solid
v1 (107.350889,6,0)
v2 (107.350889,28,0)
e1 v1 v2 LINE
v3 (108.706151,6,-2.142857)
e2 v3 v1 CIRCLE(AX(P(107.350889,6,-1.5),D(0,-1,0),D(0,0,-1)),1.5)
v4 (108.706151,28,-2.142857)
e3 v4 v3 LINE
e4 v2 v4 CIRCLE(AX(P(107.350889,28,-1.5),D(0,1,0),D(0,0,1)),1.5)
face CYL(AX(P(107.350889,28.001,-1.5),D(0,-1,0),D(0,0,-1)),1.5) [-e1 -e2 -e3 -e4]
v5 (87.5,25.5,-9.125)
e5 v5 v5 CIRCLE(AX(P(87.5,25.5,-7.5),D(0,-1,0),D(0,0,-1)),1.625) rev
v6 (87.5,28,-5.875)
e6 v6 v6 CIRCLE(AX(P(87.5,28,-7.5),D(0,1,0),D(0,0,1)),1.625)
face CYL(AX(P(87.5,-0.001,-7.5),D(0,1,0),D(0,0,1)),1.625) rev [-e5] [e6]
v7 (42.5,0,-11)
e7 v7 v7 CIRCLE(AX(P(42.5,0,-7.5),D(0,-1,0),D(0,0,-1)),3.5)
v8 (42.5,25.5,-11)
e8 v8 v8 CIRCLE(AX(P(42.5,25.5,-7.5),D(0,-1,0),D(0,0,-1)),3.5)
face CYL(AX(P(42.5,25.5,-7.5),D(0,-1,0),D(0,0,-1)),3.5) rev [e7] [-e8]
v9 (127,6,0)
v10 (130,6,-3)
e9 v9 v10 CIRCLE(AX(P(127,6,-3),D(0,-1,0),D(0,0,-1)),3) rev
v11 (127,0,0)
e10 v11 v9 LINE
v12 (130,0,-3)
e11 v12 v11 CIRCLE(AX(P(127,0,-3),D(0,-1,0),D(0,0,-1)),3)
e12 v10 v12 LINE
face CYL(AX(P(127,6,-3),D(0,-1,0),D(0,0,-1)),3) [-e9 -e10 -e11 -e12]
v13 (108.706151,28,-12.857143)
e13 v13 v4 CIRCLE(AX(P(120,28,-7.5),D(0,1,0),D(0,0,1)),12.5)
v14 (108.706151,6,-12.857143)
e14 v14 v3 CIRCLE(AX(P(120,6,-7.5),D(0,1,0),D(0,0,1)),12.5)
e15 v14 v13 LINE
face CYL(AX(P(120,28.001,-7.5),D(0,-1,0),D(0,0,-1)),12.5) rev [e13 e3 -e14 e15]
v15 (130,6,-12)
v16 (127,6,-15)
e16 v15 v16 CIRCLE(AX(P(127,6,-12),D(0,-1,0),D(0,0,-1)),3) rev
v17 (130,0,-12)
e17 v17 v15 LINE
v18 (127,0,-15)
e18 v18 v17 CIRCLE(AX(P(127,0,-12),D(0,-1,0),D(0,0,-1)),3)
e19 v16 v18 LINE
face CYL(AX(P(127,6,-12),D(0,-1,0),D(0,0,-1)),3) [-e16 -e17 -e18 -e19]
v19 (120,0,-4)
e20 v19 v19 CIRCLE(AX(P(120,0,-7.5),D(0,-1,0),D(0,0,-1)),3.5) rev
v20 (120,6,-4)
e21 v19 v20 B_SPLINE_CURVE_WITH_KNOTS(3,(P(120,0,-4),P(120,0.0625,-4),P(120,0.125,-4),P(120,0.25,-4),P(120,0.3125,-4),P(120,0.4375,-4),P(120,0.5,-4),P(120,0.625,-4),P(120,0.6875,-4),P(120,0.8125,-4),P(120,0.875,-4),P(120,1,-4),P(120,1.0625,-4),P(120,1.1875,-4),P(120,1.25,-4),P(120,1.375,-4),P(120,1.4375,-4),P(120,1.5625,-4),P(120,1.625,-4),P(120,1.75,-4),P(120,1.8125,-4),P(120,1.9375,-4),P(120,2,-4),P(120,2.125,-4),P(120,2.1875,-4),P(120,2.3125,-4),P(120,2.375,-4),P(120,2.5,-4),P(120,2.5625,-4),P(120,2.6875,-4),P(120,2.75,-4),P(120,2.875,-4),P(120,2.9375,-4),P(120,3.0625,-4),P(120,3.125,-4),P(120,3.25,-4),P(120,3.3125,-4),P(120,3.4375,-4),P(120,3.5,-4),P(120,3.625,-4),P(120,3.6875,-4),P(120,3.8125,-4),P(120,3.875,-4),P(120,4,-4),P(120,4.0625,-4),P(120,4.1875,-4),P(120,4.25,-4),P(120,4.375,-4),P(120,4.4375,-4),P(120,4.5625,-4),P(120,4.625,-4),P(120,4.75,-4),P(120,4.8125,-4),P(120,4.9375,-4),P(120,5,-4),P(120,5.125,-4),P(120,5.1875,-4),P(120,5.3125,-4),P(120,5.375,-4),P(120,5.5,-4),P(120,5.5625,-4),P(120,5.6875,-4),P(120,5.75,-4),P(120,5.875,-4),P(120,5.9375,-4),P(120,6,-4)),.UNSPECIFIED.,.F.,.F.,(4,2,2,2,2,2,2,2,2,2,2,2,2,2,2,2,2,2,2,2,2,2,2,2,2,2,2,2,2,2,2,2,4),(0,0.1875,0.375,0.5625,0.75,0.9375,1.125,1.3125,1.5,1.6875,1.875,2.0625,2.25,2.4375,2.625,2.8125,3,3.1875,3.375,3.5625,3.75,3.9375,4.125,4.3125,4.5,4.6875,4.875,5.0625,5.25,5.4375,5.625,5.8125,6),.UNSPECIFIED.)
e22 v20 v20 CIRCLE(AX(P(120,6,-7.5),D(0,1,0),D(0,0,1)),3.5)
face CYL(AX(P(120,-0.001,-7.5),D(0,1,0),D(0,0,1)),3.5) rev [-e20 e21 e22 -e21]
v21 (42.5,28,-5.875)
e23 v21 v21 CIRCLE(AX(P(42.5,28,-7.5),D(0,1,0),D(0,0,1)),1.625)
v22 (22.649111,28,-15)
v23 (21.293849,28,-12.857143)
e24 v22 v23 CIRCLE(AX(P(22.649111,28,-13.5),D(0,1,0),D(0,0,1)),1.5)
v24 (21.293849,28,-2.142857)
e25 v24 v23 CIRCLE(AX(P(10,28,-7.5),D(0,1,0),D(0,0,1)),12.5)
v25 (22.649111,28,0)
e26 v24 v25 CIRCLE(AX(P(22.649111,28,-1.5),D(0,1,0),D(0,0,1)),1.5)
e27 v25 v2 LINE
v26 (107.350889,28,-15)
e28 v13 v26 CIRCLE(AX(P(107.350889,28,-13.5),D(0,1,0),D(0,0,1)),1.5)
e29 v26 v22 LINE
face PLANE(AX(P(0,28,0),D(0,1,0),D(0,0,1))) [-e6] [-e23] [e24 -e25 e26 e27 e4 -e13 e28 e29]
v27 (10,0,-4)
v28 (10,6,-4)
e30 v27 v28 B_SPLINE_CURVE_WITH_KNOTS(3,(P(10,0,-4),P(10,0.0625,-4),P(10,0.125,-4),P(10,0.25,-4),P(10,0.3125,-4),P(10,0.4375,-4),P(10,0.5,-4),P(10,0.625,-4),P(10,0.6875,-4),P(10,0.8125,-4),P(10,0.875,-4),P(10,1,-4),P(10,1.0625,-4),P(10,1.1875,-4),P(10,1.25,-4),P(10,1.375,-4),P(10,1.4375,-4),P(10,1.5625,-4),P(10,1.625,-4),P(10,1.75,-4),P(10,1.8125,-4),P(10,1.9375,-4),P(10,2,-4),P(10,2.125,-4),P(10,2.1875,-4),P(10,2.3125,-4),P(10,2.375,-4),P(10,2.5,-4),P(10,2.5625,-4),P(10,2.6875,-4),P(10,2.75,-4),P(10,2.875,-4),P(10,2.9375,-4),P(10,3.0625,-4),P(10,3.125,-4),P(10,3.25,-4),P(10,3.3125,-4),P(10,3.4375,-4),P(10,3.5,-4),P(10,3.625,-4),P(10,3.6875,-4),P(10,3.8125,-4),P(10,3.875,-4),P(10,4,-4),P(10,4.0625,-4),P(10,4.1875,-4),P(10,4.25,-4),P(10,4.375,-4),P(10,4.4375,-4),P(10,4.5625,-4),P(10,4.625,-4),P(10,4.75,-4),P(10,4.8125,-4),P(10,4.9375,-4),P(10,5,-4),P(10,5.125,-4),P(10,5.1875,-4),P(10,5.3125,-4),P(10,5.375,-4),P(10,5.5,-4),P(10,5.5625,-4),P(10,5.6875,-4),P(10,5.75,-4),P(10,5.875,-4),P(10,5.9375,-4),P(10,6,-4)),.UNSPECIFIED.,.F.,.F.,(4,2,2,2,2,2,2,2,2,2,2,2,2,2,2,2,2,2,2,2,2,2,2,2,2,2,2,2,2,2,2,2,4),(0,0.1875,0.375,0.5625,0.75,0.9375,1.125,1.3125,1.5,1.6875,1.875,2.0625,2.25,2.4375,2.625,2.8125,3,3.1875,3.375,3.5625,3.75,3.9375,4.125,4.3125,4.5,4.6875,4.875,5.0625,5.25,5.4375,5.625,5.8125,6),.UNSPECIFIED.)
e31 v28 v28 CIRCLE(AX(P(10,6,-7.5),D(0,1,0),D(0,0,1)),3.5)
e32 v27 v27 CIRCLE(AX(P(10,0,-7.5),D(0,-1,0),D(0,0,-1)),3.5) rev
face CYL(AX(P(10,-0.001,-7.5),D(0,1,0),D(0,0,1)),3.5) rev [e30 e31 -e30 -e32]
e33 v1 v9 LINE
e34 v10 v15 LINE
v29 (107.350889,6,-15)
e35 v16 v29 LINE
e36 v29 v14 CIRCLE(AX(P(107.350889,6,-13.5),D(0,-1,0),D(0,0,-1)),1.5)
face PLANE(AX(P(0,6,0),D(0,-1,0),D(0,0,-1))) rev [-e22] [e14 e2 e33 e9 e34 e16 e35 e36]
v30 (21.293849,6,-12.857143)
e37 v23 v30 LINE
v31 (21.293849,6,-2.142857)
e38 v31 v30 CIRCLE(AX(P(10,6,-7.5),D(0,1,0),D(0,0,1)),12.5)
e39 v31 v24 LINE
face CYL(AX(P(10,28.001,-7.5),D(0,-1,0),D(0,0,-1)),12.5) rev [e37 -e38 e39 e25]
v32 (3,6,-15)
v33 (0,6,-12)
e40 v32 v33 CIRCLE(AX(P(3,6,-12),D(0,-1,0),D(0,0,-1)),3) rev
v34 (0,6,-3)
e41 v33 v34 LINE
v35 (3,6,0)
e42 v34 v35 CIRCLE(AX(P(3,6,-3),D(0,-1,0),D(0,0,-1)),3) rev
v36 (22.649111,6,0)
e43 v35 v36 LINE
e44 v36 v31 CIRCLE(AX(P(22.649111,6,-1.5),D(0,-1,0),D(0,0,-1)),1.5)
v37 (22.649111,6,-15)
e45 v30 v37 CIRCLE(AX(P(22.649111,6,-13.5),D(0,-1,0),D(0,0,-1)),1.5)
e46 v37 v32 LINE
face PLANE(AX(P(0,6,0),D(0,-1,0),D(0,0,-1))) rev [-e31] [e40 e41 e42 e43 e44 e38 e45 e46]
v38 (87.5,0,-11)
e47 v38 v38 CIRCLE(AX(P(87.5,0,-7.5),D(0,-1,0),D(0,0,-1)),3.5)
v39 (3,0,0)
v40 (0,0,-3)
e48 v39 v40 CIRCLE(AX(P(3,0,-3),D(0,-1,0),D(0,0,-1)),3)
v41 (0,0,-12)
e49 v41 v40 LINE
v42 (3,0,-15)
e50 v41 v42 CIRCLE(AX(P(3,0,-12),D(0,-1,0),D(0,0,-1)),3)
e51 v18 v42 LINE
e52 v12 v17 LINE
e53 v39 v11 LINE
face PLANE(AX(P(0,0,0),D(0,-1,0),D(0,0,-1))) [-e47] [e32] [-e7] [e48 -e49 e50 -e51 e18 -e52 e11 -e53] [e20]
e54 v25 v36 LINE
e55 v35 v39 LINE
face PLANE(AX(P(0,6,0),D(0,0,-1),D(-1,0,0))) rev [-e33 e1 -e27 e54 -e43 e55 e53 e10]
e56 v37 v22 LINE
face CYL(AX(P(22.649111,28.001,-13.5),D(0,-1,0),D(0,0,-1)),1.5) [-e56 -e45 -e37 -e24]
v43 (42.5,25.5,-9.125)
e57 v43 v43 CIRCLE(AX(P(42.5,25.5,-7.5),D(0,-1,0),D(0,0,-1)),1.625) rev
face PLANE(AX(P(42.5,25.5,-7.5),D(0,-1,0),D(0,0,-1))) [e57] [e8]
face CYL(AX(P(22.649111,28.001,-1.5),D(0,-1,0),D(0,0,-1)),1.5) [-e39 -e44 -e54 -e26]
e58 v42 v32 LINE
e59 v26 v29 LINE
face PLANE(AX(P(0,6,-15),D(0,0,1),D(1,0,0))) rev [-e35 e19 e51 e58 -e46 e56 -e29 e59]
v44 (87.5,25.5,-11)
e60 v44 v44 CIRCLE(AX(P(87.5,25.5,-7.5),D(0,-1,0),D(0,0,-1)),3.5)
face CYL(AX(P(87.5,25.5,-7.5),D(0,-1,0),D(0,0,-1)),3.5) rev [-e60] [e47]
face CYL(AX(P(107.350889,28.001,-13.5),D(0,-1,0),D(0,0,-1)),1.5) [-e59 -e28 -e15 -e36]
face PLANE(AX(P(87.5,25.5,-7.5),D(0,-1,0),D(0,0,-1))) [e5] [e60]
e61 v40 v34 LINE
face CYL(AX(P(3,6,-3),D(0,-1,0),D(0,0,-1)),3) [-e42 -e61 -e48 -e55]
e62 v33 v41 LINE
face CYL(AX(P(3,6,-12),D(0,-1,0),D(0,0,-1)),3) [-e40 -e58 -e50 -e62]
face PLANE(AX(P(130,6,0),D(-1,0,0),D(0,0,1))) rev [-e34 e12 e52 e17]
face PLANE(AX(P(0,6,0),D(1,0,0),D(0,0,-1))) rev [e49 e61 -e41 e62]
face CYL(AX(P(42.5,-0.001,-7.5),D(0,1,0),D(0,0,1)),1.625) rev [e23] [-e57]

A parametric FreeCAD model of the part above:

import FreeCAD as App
import Part
import Sketcher
Q = App.Units.Quantity


def edges_at(feature, points):
    """Names of the edges that pass closest to the given points."""
    edges = feature.Shape.Edges
    near = lambda p: min(range(len(edges)), key=lambda i: edges[i].distToShape(Part.Vertex(*p))[0])
    return sorted({f"Edge{near(p) + 1}" for p in points})

doc = App.newDocument("Part")
body = doc.addObject("PartDesign::Body", "Body")

# Sketch on XZ plane
sketch1 = body.newObject("Sketcher::SketchObject", "Sketch")
sketch1.AttachmentSupport = (doc.getObject("XZ_Plane"), [""])
sketch1.MapMode = "FlatFace"
sketch1.addGeometry([
    Part.LineSegment(App.Vector(0, -15, 0), App.Vector(0, 0, 0)),
    Part.LineSegment(App.Vector(0, 0, 0), App.Vector(130, 0, 0)),
    Part.LineSegment(App.Vector(130, 0, 0), App.Vector(130, -15, 0)),
    Part.LineSegment(App.Vector(130, -15, 0), App.Vector(0, -15, 0)),
], False)
sketch1.addConstraint([
    Sketcher.Constraint("Coincident", 0, 2, 1, 1),
    Sketcher.Constraint("Coincident", 1, 2, 2, 1),
    Sketcher.Constraint("Coincident", 2, 2, 3, 1),
    Sketcher.Constraint("Coincident", 3, 2, 0, 1),
    Sketcher.Constraint("Vertical", 0),
    Sketcher.Constraint("Horizontal", 1),
    Sketcher.Constraint("Vertical", 2),
    Sketcher.Constraint("Horizontal", 3),
    Sketcher.Constraint("Coincident", 0, 2, -1, 1),
    Sketcher.Constraint("DistanceX", 1, 1, 1, 2, Q("130 mm")),
    Sketcher.Constraint("DistanceY", 0, 1, 0, 2, Q("15 mm")),
])
pad1 = body.newObject("PartDesign::Pad", "Pad")
pad1.Profile = sketch1
pad1.Length = 6
pad1.Reversed = True

# Sketch on XZ plane
sketch2 = body.newObject("Sketcher::SketchObject", "Sketch001")
sketch2.AttachmentSupport = (doc.getObject("XZ_Plane"), [""])
sketch2.MapMode = "FlatFace"
sketch2.AttachmentOffset = App.Placement(App.Vector(0, 0, -6), App.Rotation())
sketch2.addGeometry([
    Part.LineSegment(App.Vector(20, -15, 0), App.Vector(20, 0, 0)),
    Part.LineSegment(App.Vector(20, 0, 0), App.Vector(110, 0, 0)),
    Part.LineSegment(App.Vector(110, 0, 0), App.Vector(110, -15, 0)),
    Part.LineSegment(App.Vector(110, -15, 0), App.Vector(20, -15, 0)),
], False)
sketch2.addConstraint([
    Sketcher.Constraint("Coincident", 0, 2, 1, 1),
    Sketcher.Constraint("Coincident", 1, 2, 2, 1),
    Sketcher.Constraint("Coincident", 2, 2, 3, 1),
    Sketcher.Constraint("Coincident", 3, 2, 0, 1),
    Sketcher.Constraint("Vertical", 0),
    Sketcher.Constraint("Horizontal", 1),
    Sketcher.Constraint("Vertical", 2),
    Sketcher.Constraint("Horizontal", 3),
    Sketcher.Constraint("PointOnObject", 0, 2, -1),
    Sketcher.Constraint("DistanceX", 1, 1, 1, 2, Q("90 mm")),
    Sketcher.Constraint("DistanceY", 0, 1, 0, 2, Q("15 mm")),
    Sketcher.Constraint("DistanceX", -1, 1, 0, 2, Q("20 mm")),
])
pad2 = body.newObject("PartDesign::Pad", "Pad001")
pad2.Profile = sketch2
pad2.Length = 22
pad2.Reversed = True

# Sketch on XZ plane
sketch3 = body.newObject("Sketcher::SketchObject", "Sketch002")
sketch3.AttachmentSupport = (doc.getObject("XZ_Plane"), [""])
sketch3.MapMode = "FlatFace"
sketch3.AttachmentOffset = App.Placement(App.Vector(0, 0, -6), App.Rotation())
sketch3.addGeometry(Part.Circle(App.Vector(10, -7.5, 0), App.Vector(0, 0, 1), 3.5), False)
sketch3.addConstraint([
    Sketcher.Constraint("Diameter", 0, Q("7 mm")),
    Sketcher.Constraint("DistanceX", -1, 1, 0, 3, Q("10 mm")),
    Sketcher.Constraint("DistanceY", 0, 3, -1, 1, Q("7.5 mm")),
])
pocket1 = body.newObject("PartDesign::Pocket", "Pocket")
pocket1.Profile = sketch3
pocket1.Type = "UpToFirst"
pocket1.Reversed = True

# Sketch on XZ plane
sketch4 = body.newObject("Sketcher::SketchObject", "Sketch003")
sketch4.AttachmentSupport = (doc.getObject("XZ_Plane"), [""])
sketch4.MapMode = "FlatFace"
sketch4.AttachmentOffset = App.Placement(App.Vector(0, 0, -6), App.Rotation())
sketch4.addGeometry(Part.Circle(App.Vector(120, -7.5, 0), App.Vector(0, 0, 1), 3.5), False)
sketch4.addConstraint([
    Sketcher.Constraint("Diameter", 0, Q("7 mm")),
    Sketcher.Constraint("DistanceX", -1, 1, 0, 3, Q("120 mm")),
    Sketcher.Constraint("DistanceY", 0, 3, -1, 1, Q("7.5 mm")),
])
pocket2 = body.newObject("PartDesign::Pocket", "Pocket001")
pocket2.Profile = sketch4
pocket2.Type = "UpToFirst"
pocket2.Reversed = True

# Sketch on XZ plane
sketch5 = body.newObject("Sketcher::SketchObject", "Sketch004")
sketch5.AttachmentSupport = (doc.getObject("XZ_Plane"), [""])
sketch5.MapMode = "FlatFace"
sketch5.AttachmentOffset = App.Placement(App.Vector(0, 0, -6), App.Rotation())
sketch5.addGeometry(Part.Circle(App.Vector(10, -7.5, 0), App.Vector(0, 0, 1), 12.5), False)
sketch5.addConstraint([
    Sketcher.Constraint("Diameter", 0, Q("25 mm")),
    Sketcher.Constraint("DistanceX", -1, 1, 0, 3, Q("10 mm")),
    Sketcher.Constraint("DistanceY", 0, 3, -1, 1, Q("7.5 mm")),
])
pocket3 = body.newObject("PartDesign::Pocket", "Pocket002")
pocket3.Profile = sketch5
pocket3.Length = 22

# Sketch on XZ plane
sketch6 = body.newObject("Sketcher::SketchObject", "Sketch005")
sketch6.AttachmentSupport = (doc.getObject("XZ_Plane"), [""])
sketch6.MapMode = "FlatFace"
sketch6.AttachmentOffset = App.Placement(App.Vector(0, 0, -6), App.Rotation())
sketch6.addGeometry(Part.Circle(App.Vector(120, -7.5, 0), App.Vector(0, 0, 1), 12.5), False)
sketch6.addConstraint([
    Sketcher.Constraint("Diameter", 0, Q("25 mm")),
    Sketcher.Constraint("DistanceX", -1, 1, 0, 3, Q("120 mm")),
    Sketcher.Constraint("DistanceY", 0, 3, -1, 1, Q("7.5 mm")),
])
pocket4 = body.newObject("PartDesign::Pocket", "Pocket003")
pocket4.Profile = sketch6
pocket4.Length = 22

# Sketch on XZ plane
sketch7 = body.newObject("Sketcher::SketchObject", "Sketch006")
sketch7.AttachmentSupport = (doc.getObject("XZ_Plane"), [""])
sketch7.MapMode = "FlatFace"
sketch7.AttachmentOffset = App.Placement(App.Vector(0, 0, -28), App.Rotation())
sketch7.addGeometry(Part.Circle(App.Vector(42.5, -7.5, 0), App.Vector(0, 0, 1), 1.625), False)
sketch7.addConstraint([
    Sketcher.Constraint("Diameter", 0, Q("3.25 mm")),
    Sketcher.Constraint("DistanceX", -1, 1, 0, 3, Q("42.5 mm")),
    Sketcher.Constraint("DistanceY", 0, 3, -1, 1, Q("7.5 mm")),
])
pocket5 = body.newObject("PartDesign::Pocket", "Pocket004")
pocket5.Profile = sketch7
pocket5.Type = "UpToFirst"
pocket5.Reversed = True

# Sketch on XZ plane
sketch8 = body.newObject("Sketcher::SketchObject", "Sketch007")
sketch8.AttachmentSupport = (doc.getObject("XZ_Plane"), [""])
sketch8.MapMode = "FlatFace"
sketch8.AttachmentOffset = App.Placement(App.Vector(0, 0, -28), App.Rotation())
sketch8.addGeometry(Part.Circle(App.Vector(87.5, -7.5, 0), App.Vector(0, 0, 1), 1.625), False)
sketch8.addConstraint([
    Sketcher.Constraint("Diameter", 0, Q("3.25 mm")),
    Sketcher.Constraint("DistanceX", -1, 1, 0, 3, Q("87.5 mm")),
    Sketcher.Constraint("DistanceY", 0, 3, -1, 1, Q("7.5 mm")),
])
pocket6 = body.newObject("PartDesign::Pocket", "Pocket005")
pocket6.Profile = sketch8
pocket6.Type = "UpToFirst"
pocket6.Reversed = True

# Sketch on XZ plane
sketch9 = body.newObject("Sketcher::SketchObject", "Sketch008")
sketch9.AttachmentSupport = (doc.getObject("XZ_Plane"), [""])
sketch9.MapMode = "FlatFace"
sketch9.addGeometry([
    Part.Circle(App.Vector(42.5, -7.5, 0), App.Vector(0, 0, 1), 3.5),
    Part.Circle(App.Vector(87.5, -7.5, 0), App.Vector(0, 0, 1), 3.5),
], False)
sketch9.addConstraint([
    Sketcher.Constraint("Equal", 0, 1),
    Sketcher.Constraint("Horizontal", 0, 3, 1, 3),
    Sketcher.Constraint("Diameter", 0, Q("7 mm")),
    Sketcher.Constraint("DistanceX", 0, 3, 1, 3, Q("45 mm")),
    Sketcher.Constraint("DistanceX", -1, 1, 0, 3, Q("42.5 mm")),
    Sketcher.Constraint("DistanceY", 0, 3, -1, 1, Q("7.5 mm")),
])
pocket7 = body.newObject("PartDesign::Pocket", "Pocket006")
pocket7.Profile = sketch9
pocket7.Length = 25.5
doc.recompute()

fillet = body.newObject("PartDesign::Fillet", "Fillet")
fillet.Base = (pocket7, edges_at(pocket7, [
    (0, 3, -15),
    (130, 3, -15),
    (130, 3, 0),
    (0, 3, 0),
]))
fillet.Radius = 3
doc.recompute()

fillet2 = body.newObject("PartDesign::Fillet", "Fillet001")
fillet2.Base = (fillet, edges_at(fillet, [
    (20, 17, -15),
    (20, 17, 0),
    (110, 17, 0),
    (110, 17, -15),
]))
fillet2.Radius = 1.5

doc.recompute()
